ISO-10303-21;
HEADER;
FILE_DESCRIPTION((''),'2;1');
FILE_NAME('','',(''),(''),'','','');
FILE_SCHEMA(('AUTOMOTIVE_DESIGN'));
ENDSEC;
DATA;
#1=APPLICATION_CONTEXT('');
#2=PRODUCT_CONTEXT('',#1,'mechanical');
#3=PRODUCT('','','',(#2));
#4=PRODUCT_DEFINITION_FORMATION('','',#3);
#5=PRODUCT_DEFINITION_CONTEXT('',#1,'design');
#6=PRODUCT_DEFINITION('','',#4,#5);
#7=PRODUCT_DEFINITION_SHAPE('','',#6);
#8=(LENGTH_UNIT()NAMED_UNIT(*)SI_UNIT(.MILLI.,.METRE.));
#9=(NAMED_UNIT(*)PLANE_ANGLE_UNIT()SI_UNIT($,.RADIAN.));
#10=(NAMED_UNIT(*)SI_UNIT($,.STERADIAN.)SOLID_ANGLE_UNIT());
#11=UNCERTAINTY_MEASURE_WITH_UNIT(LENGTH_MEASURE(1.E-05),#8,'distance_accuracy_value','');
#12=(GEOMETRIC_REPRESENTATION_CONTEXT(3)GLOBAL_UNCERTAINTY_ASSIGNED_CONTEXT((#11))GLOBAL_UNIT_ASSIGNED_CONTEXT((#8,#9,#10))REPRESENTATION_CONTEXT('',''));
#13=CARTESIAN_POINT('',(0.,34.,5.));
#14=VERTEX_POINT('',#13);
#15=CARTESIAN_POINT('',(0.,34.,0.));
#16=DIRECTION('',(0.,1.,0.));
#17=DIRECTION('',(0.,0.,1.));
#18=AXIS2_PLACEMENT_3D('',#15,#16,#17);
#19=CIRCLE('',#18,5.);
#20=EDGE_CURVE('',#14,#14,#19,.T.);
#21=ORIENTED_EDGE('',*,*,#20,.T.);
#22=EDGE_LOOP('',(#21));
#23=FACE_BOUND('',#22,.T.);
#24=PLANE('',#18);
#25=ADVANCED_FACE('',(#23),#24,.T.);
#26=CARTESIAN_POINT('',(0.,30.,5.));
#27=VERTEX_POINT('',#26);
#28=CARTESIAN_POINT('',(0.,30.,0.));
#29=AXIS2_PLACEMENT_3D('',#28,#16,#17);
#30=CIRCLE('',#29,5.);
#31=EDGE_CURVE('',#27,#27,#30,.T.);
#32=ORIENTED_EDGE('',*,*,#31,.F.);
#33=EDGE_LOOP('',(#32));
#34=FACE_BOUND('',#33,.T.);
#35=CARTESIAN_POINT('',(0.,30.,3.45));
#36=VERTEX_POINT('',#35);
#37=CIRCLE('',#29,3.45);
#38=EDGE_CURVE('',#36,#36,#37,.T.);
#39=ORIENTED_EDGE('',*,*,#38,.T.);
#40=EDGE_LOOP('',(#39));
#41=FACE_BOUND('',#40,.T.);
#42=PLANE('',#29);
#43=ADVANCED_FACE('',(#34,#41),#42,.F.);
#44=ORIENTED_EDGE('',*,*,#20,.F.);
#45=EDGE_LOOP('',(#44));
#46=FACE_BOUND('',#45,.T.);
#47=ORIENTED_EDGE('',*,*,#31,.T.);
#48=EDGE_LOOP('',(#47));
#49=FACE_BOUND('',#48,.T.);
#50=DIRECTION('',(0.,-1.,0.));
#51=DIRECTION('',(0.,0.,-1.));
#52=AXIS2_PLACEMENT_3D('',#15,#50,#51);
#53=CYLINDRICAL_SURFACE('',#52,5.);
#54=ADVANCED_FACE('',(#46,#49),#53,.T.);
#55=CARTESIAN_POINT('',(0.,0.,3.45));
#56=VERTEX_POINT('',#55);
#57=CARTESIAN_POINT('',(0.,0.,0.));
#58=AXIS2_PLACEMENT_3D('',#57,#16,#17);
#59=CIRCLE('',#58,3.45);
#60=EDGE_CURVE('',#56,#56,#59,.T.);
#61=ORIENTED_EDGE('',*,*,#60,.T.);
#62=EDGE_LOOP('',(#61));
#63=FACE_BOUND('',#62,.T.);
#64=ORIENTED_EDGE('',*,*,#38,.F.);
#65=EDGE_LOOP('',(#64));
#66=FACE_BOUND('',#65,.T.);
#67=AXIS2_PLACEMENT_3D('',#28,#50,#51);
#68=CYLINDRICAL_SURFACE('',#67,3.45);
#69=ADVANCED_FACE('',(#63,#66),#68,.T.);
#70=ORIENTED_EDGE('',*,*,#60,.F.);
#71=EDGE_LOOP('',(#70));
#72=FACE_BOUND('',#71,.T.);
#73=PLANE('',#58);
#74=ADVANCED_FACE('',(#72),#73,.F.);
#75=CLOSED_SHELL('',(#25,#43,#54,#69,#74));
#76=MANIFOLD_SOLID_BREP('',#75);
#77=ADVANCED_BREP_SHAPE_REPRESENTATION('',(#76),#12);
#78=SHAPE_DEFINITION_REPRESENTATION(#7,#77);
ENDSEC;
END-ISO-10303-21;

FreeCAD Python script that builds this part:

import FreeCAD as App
import Part
import Sketcher
from FreeCAD import Vector

doc = App.newDocument("Part")
params = doc.addObject("Spreadsheet::Sheet", "Params")
for row, (alias, value) in enumerate([
    ("sketch1_diameter", "6.9 mm"),
    ("pad1_length", "30 mm"),
    ("sketch2_diameter", "10 mm"),
    ("pad2_length", "4 mm"),
], start=1):
    params.set(f"A{row}", alias)
    params.set(f"B{row}", "=" + value)
    params.setAlias(f"B{row}", alias)

body = doc.addObject("PartDesign::Body", "Body")

# Sketch on XZ plane
sketch1 = body.newObject("Sketcher::SketchObject", "Sketch")
sketch1.AttachmentSupport = (doc.getObject("XZ_Plane"), [""])
sketch1.MapMode = "FlatFace"
sketch1.addGeometry(Part.Circle(Vector(0, 0, 0), Vector(0, 0, 1), 3.5), False)
sketch1.addConstraint([
    Sketcher.Constraint("Coincident", 0, 3, -1, 1),
    Sketcher.Constraint("Diameter", 0, 6.9),
])
sketch1.setExpression("Constraints[1]", "Params.sketch1_diameter")
pad1 = body.newObject("PartDesign::Pad", "Pad")
pad1.Profile = sketch1
pad1.setExpression("Length", "Params.pad1_length")
pad1.Reversed = True

# Sketch on XZ plane
sketch2 = body.newObject("Sketcher::SketchObject", "Sketch001")
sketch2.AttachmentSupport = (doc.getObject("XZ_Plane"), [""])
sketch2.MapMode = "FlatFace"
sketch2.AttachmentOffset = App.Placement(Vector(0, 0, -30), App.Rotation())
sketch2.addGeometry(Part.Circle(Vector(0, 0, 0), Vector(0, 0, 1), 5), False)
sketch2.addConstraint([
    Sketcher.Constraint("Coincident", 0, 3, -1, 1),
    Sketcher.Constraint("Diameter", 0, 10.0),
])
sketch2.setExpression("Constraints[1]", "Params.sketch2_diameter")
pad2 = body.newObject("PartDesign::Pad", "Pad001")
pad2.Profile = sketch2
pad2.setExpression("Length", "Params.pad2_length")
pad2.Reversed = True

doc.recompute()
